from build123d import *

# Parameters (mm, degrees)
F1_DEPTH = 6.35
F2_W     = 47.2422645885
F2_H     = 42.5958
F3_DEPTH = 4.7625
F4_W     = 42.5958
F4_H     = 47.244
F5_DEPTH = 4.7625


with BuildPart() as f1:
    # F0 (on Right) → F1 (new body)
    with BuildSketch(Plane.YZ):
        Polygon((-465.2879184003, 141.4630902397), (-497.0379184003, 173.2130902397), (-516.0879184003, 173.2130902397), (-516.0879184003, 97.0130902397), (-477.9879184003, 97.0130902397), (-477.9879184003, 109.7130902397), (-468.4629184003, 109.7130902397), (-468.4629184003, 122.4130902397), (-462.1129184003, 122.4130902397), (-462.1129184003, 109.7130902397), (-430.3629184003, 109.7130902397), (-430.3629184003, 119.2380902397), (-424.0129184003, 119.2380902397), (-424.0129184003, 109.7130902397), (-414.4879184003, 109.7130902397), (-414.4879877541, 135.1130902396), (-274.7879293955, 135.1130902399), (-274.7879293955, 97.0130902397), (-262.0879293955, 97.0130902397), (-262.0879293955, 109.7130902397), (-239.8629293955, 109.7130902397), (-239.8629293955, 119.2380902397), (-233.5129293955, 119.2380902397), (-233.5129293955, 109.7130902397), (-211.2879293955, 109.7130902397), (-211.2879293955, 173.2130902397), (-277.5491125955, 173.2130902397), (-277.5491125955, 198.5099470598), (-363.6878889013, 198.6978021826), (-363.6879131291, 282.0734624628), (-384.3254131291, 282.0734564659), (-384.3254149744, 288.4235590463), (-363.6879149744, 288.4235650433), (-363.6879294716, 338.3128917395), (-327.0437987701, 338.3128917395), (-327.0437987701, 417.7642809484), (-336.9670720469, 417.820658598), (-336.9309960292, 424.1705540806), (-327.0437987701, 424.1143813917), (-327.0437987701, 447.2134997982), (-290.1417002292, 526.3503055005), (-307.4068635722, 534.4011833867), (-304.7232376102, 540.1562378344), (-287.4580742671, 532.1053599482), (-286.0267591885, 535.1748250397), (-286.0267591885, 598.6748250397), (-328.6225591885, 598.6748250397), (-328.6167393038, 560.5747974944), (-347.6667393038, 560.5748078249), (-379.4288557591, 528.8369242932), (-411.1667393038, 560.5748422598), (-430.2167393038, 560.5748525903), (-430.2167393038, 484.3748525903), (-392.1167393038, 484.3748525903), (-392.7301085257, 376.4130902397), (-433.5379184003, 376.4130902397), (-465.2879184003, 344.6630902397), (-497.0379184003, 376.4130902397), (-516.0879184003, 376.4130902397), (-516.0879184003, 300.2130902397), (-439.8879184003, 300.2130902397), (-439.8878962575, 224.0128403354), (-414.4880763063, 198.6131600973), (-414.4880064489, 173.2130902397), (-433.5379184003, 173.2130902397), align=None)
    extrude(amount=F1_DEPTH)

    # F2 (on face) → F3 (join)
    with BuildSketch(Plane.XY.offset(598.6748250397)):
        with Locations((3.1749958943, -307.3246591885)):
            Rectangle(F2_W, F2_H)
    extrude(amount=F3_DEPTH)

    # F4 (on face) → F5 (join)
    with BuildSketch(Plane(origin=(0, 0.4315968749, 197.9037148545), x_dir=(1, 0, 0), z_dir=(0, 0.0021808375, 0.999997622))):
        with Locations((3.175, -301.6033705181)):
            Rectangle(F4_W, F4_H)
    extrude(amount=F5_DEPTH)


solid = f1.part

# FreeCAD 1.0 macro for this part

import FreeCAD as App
import Part
import Sketcher

V = App.Vector
Q = App.Units.Quantity

doc = App.newDocument("Part")
body = doc.addObject("PartDesign::Body", "Body")

# Sketch on YZ plane
sketch1 = body.newObject("Sketcher::SketchObject", "Sketch")
sketch1.AttachmentSupport = (doc.getObject("YZ_Plane"), [""])
sketch1.MapMode = "FlatFace"
sketch1.addGeometry([
    Part.LineSegment(V(-465.287918, 141.46309, 0), V(-497.037918, 173.21309, 0)),  # 0
    Part.LineSegment(V(-497.037918, 173.21309, 0), V(-516.087918, 173.21309, 0)),  # 1
    Part.LineSegment(V(-516.087918, 173.21309, 0), V(-516.087918, 97.01309, 0)),  # 2
    Part.LineSegment(V(-516.087918, 97.01309, 0), V(-477.987918, 97.01309, 0)),  # 3
    Part.LineSegment(V(-477.987918, 97.01309, 0), V(-477.987918, 109.71309, 0)),  # 4
    Part.LineSegment(V(-477.987918, 109.71309, 0), V(-468.462918, 109.71309, 0)),  # 5
    Part.LineSegment(V(-468.462918, 109.71309, 0), V(-468.462918, 122.41309, 0)),  # 6
    Part.LineSegment(V(-468.462918, 122.41309, 0), V(-462.112918, 122.41309, 0)),  # 7
    Part.LineSegment(V(-462.112918, 122.41309, 0), V(-462.112918, 109.71309, 0)),  # 8
    Part.LineSegment(V(-462.112918, 109.71309, 0), V(-430.362918, 109.71309, 0)),  # 9
    Part.LineSegment(V(-430.362918, 109.71309, 0), V(-430.362918, 119.23809, 0)),  # 10
    Part.LineSegment(V(-430.362918, 119.23809, 0), V(-424.012918, 119.23809, 0)),  # 11
    Part.LineSegment(V(-424.012918, 119.23809, 0), V(-424.012918, 109.71309, 0)),  # 12
    Part.LineSegment(V(-424.012918, 109.71309, 0), V(-414.487918, 109.71309, 0)),  # 13
    Part.LineSegment(V(-414.487918, 109.71309, 0), V(-414.487988, 135.11309, 0)),  # 14
    Part.LineSegment(V(-414.487988, 135.11309, 0), V(-274.787929, 135.11309, 0)),  # 15
    Part.LineSegment(V(-274.787929, 135.11309, 0), V(-274.787929, 97.01309, 0)),  # 16
    Part.LineSegment(V(-274.787929, 97.01309, 0), V(-262.087929, 97.01309, 0)),  # 17
    Part.LineSegment(V(-262.087929, 97.01309, 0), V(-262.087929, 109.71309, 0)),  # 18
    Part.LineSegment(V(-262.087929, 109.71309, 0), V(-239.862929, 109.71309, 0)),  # 19
    Part.LineSegment(V(-239.862929, 109.71309, 0), V(-239.862929, 119.23809, 0)),  # 20
    Part.LineSegment(V(-239.862929, 119.23809, 0), V(-233.512929, 119.23809, 0)),  # 21
    Part.LineSegment(V(-233.512929, 119.23809, 0), V(-233.512929, 109.71309, 0)),  # 22
    Part.LineSegment(V(-233.512929, 109.71309, 0), V(-211.287929, 109.71309, 0)),  # 23
    Part.LineSegment(V(-211.287929, 109.71309, 0), V(-211.287929, 173.21309, 0)),  # 24
    Part.LineSegment(V(-211.287929, 173.21309, 0), V(-277.549113, 173.21309, 0)),  # 25
    Part.LineSegment(V(-277.549113, 173.21309, 0), V(-277.549113, 198.509947, 0)),  # 26
    Part.LineSegment(V(-277.549113, 198.509947, 0), V(-363.687889, 198.697802, 0)),  # 27
    Part.LineSegment(V(-363.687889, 198.697802, 0), V(-363.687913, 282.073462, 0)),  # 28
    Part.LineSegment(V(-363.687913, 282.073462, 0), V(-384.325413, 282.073456, 0)),  # 29
    Part.LineSegment(V(-384.325413, 282.073456, 0), V(-384.325415, 288.423559, 0)),  # 30
    Part.LineSegment(V(-384.325415, 288.423559, 0), V(-363.687915, 288.423565, 0)),  # 31
    Part.LineSegment(V(-363.687915, 288.423565, 0), V(-363.687929, 338.312892, 0)),  # 32
    Part.LineSegment(V(-363.687929, 338.312892, 0), V(-327.043799, 338.312892, 0)),  # 33
    Part.LineSegment(V(-327.043799, 338.312892, 0), V(-327.043799, 417.764281, 0)),  # 34
    Part.LineSegment(V(-327.043799, 417.764281, 0), V(-336.967072, 417.820659, 0)),  # 35
    Part.LineSegment(V(-336.967072, 417.820659, 0), V(-336.930996, 424.170554, 0)),  # 36
    Part.LineSegment(V(-336.930996, 424.170554, 0), V(-327.043799, 424.114381, 0)),  # 37
    Part.LineSegment(V(-327.043799, 424.114381, 0), V(-327.043799, 447.2135, 0)),  # 38
    Part.LineSegment(V(-327.043799, 447.2135, 0), V(-290.1417, 526.350305, 0)),  # 39
    Part.LineSegment(V(-290.1417, 526.350305, 0), V(-307.406864, 534.401183, 0)),  # 40
    Part.LineSegment(V(-307.406864, 534.401183, 0), V(-304.723238, 540.156238, 0)),  # 41
    Part.LineSegment(V(-304.723238, 540.156238, 0), V(-287.458074, 532.10536, 0)),  # 42
    Part.LineSegment(V(-287.458074, 532.10536, 0), V(-286.026759, 535.174825, 0)),  # 43
    Part.LineSegment(V(-286.026759, 535.174825, 0), V(-286.026759, 598.674825, 0)),  # 44
    Part.LineSegment(V(-286.026759, 598.674825, 0), V(-328.622559, 598.674825, 0)),  # 45
    Part.LineSegment(V(-328.622559, 598.674825, 0), V(-328.616739, 560.574797, 0)),  # 46
    Part.LineSegment(V(-328.616739, 560.574797, 0), V(-347.666739, 560.574808, 0)),  # 47
    Part.LineSegment(V(-347.666739, 560.574808, 0), V(-379.428856, 528.836924, 0)),  # 48
    Part.LineSegment(V(-379.428856, 528.836924, 0), V(-411.166739, 560.574842, 0)),  # 49
    Part.LineSegment(V(-411.166739, 560.574842, 0), V(-430.216739, 560.574853, 0)),  # 50
    Part.LineSegment(V(-430.216739, 560.574853, 0), V(-430.216739, 484.374853, 0)),  # 51
    Part.LineSegment(V(-430.216739, 484.374853, 0), V(-392.116739, 484.374853, 0)),  # 52
    Part.LineSegment(V(-392.116739, 484.374853, 0), V(-392.730109, 376.41309, 0)),  # 53
    Part.LineSegment(V(-392.730109, 376.41309, 0), V(-433.537918, 376.41309, 0)),  # 54
    Part.LineSegment(V(-433.537918, 376.41309, 0), V(-465.287918, 344.66309, 0)),  # 55
    Part.LineSegment(V(-465.287918, 344.66309, 0), V(-497.037918, 376.41309, 0)),  # 56
    Part.LineSegment(V(-497.037918, 376.41309, 0), V(-516.087918, 376.41309, 0)),  # 57
    Part.LineSegment(V(-516.087918, 376.41309, 0), V(-516.087918, 300.21309, 0)),  # 58
    Part.LineSegment(V(-516.087918, 300.21309, 0), V(-439.887918, 300.21309, 0)),  # 59
    Part.LineSegment(V(-439.887918, 300.21309, 0), V(-439.887896, 224.01284, 0)),  # 60
    Part.LineSegment(V(-439.887896, 224.01284, 0), V(-414.488076, 198.61316, 0)),  # 61
    Part.LineSegment(V(-414.488076, 198.61316, 0), V(-414.488006, 173.21309, 0)),  # 62
    Part.LineSegment(V(-414.488006, 173.21309, 0), V(-433.537918, 173.21309, 0)),  # 63
    Part.LineSegment(V(-433.537918, 173.21309, 0), V(-465.287918, 141.46309, 0)),  # 64
], False)
sketch1.addConstraint([
    Sketcher.Constraint("Coincident", 0, 2, 1, 1),
    Sketcher.Constraint("Coincident", 1, 2, 2, 1),
    Sketcher.Constraint("Coincident", 2, 2, 3, 1),
    Sketcher.Constraint("Coincident", 3, 2, 4, 1),
    Sketcher.Constraint("Coincident", 4, 2, 5, 1),
    Sketcher.Constraint("Coincident", 5, 2, 6, 1),
    Sketcher.Constraint("Coincident", 6, 2, 7, 1),
    Sketcher.Constraint("Coincident", 7, 2, 8, 1),
    Sketcher.Constraint("Coincident", 8, 2, 9, 1),
    Sketcher.Constraint("Coincident", 9, 2, 10, 1),
    Sketcher.Constraint("Coincident", 10, 2, 11, 1),
    Sketcher.Constraint("Coincident", 11, 2, 12, 1),
    Sketcher.Constraint("Coincident", 12, 2, 13, 1),
    Sketcher.Constraint("Coincident", 13, 2, 14, 1),
    Sketcher.Constraint("Coincident", 14, 2, 15, 1),
    Sketcher.Constraint("Coincident", 15, 2, 16, 1),
    Sketcher.Constraint("Coincident", 16, 2, 17, 1),
    Sketcher.Constraint("Coincident", 17, 2, 18, 1),
    Sketcher.Constraint("Coincident", 18, 2, 19, 1),
    Sketcher.Constraint("Coincident", 19, 2, 20, 1),
    Sketcher.Constraint("Coincident", 20, 2, 21, 1),
    Sketcher.Constraint("Coincident", 21, 2, 22, 1),
    Sketcher.Constraint("Coincident", 22, 2, 23, 1),
    Sketcher.Constraint("Coincident", 23, 2, 24, 1),
    Sketcher.Constraint("Coincident", 24, 2, 25, 1),
    Sketcher.Constraint("Coincident", 25, 2, 26, 1),
    Sketcher.Constraint("Coincident", 26, 2, 27, 1),
    Sketcher.Constraint("Coincident", 27, 2, 28, 1),
    Sketcher.Constraint("Coincident", 28, 2, 29, 1),
    Sketcher.Constraint("Coincident", 29, 2, 30, 1),
    Sketcher.Constraint("Coincident", 30, 2, 31, 1),
    Sketcher.Constraint("Coincident", 31, 2, 32, 1),
    Sketcher.Constraint("Coincident", 32, 2, 33, 1),
    Sketcher.Constraint("Coincident", 33, 2, 34, 1),
    Sketcher.Constraint("Coincident", 34, 2, 35, 1),
    Sketcher.Constraint("Coincident", 35, 2, 36, 1),
    Sketcher.Constraint("Coincident", 36, 2, 37, 1),
    Sketcher.Constraint("Coincident", 37, 2, 38, 1),
    Sketcher.Constraint("Coincident", 38, 2, 39, 1),
    Sketcher.Constraint("Coincident", 39, 2, 40, 1),
    Sketcher.Constraint("Coincident", 40, 2, 41, 1),
    Sketcher.Constraint("Coincident", 41, 2, 42, 1),
    Sketcher.Constraint("Coincident", 42, 2, 43, 1),
    Sketcher.Constraint("Coincident", 43, 2, 44, 1),
    Sketcher.Constraint("Coincident", 44, 2, 45, 1),
    Sketcher.Constraint("Coincident", 45, 2, 46, 1),
    Sketcher.Constraint("Coincident", 46, 2, 47, 1),
    Sketcher.Constraint("Coincident", 47, 2, 48, 1),
    Sketcher.Constraint("Coincident", 48, 2, 49, 1),
    Sketcher.Constraint("Coincident", 49, 2, 50, 1),
    Sketcher.Constraint("Coincident", 50, 2, 51, 1),
    Sketcher.Constraint("Coincident", 51, 2, 52, 1),
    Sketcher.Constraint("Coincident", 52, 2, 53, 1),
    Sketcher.Constraint("Coincident", 53, 2, 54, 1),
    Sketcher.Constraint("Coincident", 54, 2, 55, 1),
    Sketcher.Constraint("Coincident", 55, 2, 56, 1),
    Sketcher.Constraint("Coincident", 56, 2, 57, 1),
    Sketcher.Constraint("Coincident", 57, 2, 58, 1),
    Sketcher.Constraint("Coincident", 58, 2, 59, 1),
    Sketcher.Constraint("Coincident", 59, 2, 60, 1),
    Sketcher.Constraint("Coincident", 60, 2, 61, 1),
    Sketcher.Constraint("Coincident", 61, 2, 62, 1),
    Sketcher.Constraint("Coincident", 62, 2, 63, 1),
    Sketcher.Constraint("Coincident", 63, 2, 64, 1),
    Sketcher.Constraint("Coincident", 64, 2, 0, 1),
    Sketcher.Constraint("Horizontal", 1),
    Sketcher.Constraint("Vertical", 2),
    Sketcher.Constraint("Horizontal", 3),
    Sketcher.Constraint("Vertical", 4),
    Sketcher.Constraint("Horizontal", 5),
    Sketcher.Constraint("Vertical", 6),
    Sketcher.Constraint("Horizontal", 7),
    Sketcher.Constraint("Vertical", 8),
    Sketcher.Constraint("Horizontal", 9),
    Sketcher.Constraint("Vertical", 10),
    Sketcher.Constraint("Horizontal", 11),
    Sketcher.Constraint("Vertical", 12),
    Sketcher.Constraint("Horizontal", 13),
    Sketcher.Constraint("Horizontal", 15),
    Sketcher.Constraint("Vertical", 16),
    Sketcher.Constraint("Horizontal", 17),
    Sketcher.Constraint("Vertical", 18),
    Sketcher.Constraint("Horizontal", 19),
    Sketcher.Constraint("Vertical", 20),
    Sketcher.Constraint("Horizontal", 21),
    Sketcher.Constraint("Vertical", 22),
    Sketcher.Constraint("Horizontal", 23),
    Sketcher.Constraint("Vertical", 24),
    Sketcher.Constraint("Horizontal", 25),
    Sketcher.Constraint("Vertical", 26),
    Sketcher.Constraint("Vertical", 30),
    Sketcher.Constraint("Horizontal", 33),
    Sketcher.Constraint("Vertical", 34),
    Sketcher.Constraint("Vertical", 38),
    Sketcher.Constraint("Vertical", 44),
    Sketcher.Constraint("Horizontal", 45),
    Sketcher.Constraint("Vertical", 51),
    Sketcher.Constraint("Horizontal", 52),
    Sketcher.Constraint("Horizontal", 54),
    Sketcher.Constraint("Horizontal", 57),
    Sketcher.Constraint("Vertical", 58),
    Sketcher.Constraint("Horizontal", 59),
    Sketcher.Constraint("Horizontal", 63),
    Sketcher.Constraint("Perpendicular", 28, 29),
    Sketcher.Constraint("Parallel", 29, 31),
    Sketcher.Constraint("Perpendicular", 31, 32),
    Sketcher.Constraint("Perpendicular", 35, 36),
    Sketcher.Constraint("Perpendicular", 36, 37),
    Sketcher.Constraint("Perpendicular", 39, 40),
    Sketcher.Constraint("Perpendicular", 40, 41),
    Sketcher.Constraint("Perpendicular", 41, 42),
    Sketcher.Constraint("Perpendicular", 42, 43),
    Sketcher.Constraint("Perpendicular", 32, 47),
    Sketcher.Constraint("Parallel", 0, 49),
    Sketcher.Constraint("Parallel", 47, 50),
    Sketcher.Constraint("Perpendicular", 37, 53),
    Sketcher.Constraint("Perpendicular", 49, 55),
    Sketcher.Constraint("Perpendicular", 55, 56),
    Sketcher.Constraint("Perpendicular", 50, 60),
    Sketcher.Constraint("Parallel", 14, 62),
    Sketcher.Constraint("Perpendicular", 56, 64),
    Sketcher.Constraint("Horizontal", 5, 2, 8, 2),
    Sketcher.Constraint("Horizontal", 9, 2, 12, 2),
    Sketcher.Constraint("Horizontal", 3, 2, 16, 2),
    Sketcher.Constraint("Horizontal", 13, 2, 18, 2),
    Sketcher.Constraint("Horizontal", 11, 2, 20, 2),
    Sketcher.Constraint("Horizontal", 19, 2, 22, 2),
    Sketcher.Constraint("Horizontal", 1, 2, 24, 2),
    Sketcher.Constraint("Horizontal", 54, 2, 56, 2),
    Sketcher.Constraint("Horizontal", 25, 2, 62, 2),
    Sketcher.Constraint("Vertical", 28, 2, 31, 2),
    Sketcher.Constraint("Vertical", 34, 2, 37, 2),
    Sketcher.Constraint("Vertical", 0, 2, 56, 2),
    Sketcher.Constraint("Vertical", 2, 2, 57, 2),
    Sketcher.Constraint("Vertical", 54, 2, 63, 2),
    Sketcher.Constraint("Equal", 7, 11),
    Sketcher.Constraint("Equal", 5, 13),
    Sketcher.Constraint("Equal", 11, 21),
    Sketcher.Constraint("Equal", 19, 23),
    Sketcher.Constraint("Equal", 3, 52),
    Sketcher.Constraint("Equal", 59, 2),
    Sketcher.Constraint("Equal", 17, 4),
    Sketcher.Constraint("Equal", 4, 6),
    Sketcher.Constraint("Equal", 13, 10),
    Sketcher.Constraint("Equal", 52, 16),
    Sketcher.Constraint("Equal", 24, 44),
    Sketcher.Constraint("Equal", 2, 51),
    Sketcher.Constraint("Equal", 51, 58),
    Sketcher.Constraint("Equal", 40, 42),
    Sketcher.Constraint("Equal", 42, 47),
    Sketcher.Constraint("Equal", 47, 50),
    Sketcher.Constraint("Equal", 0, 55),
    Sketcher.Constraint("DistanceX", 59, 1, 59, 2, Q("3 in")),
    Sketcher.Constraint("Distance", 14, Q("1 in")),
    Sketcher.Constraint("DistanceX", 3, 1, 3, 2, Q("1.5 in")),
    Sketcher.Constraint("Angle", 28, Q("90.000017 deg")),
    Sketcher.Constraint("Angle", 39, Q("65 deg")),
    Sketcher.Constraint("DistanceX", 1, 2, 1, 1, Q("0.75 in")),
    Sketcher.Constraint("DistanceX", 7, 1, 7, 2, Q("0.25 in")),
    Sketcher.Constraint("DistanceX", 9, 1, 9, 2, Q("1.25 in")),
    Sketcher.Constraint("Distance", 36, Q("0.2499999 in")),
    Sketcher.Constraint("Distance", 40, Q("0.75 in")),
    Sketcher.Constraint("Distance", 41, Q("0.25 in")),
    Sketcher.Constraint("DistanceX", 5, 1, 5, 2, Q("0.375 in")),
    Sketcher.Constraint("DistanceX", 19, 1, 19, 2, Q("0.875 in")),
    Sketcher.Constraint("DistanceX", 45, 2, 45, 1, Q("1.677 in")),
    Sketcher.Constraint("Distance", 29, Q("0.8125 in")),
    Sketcher.Constraint("DistanceX", 36, 2, -1, 1, Q("13.2649998 in")),
    Sketcher.Constraint("DistanceX", 15, 1, 15, 2, 139.700058),
    Sketcher.Constraint("DistanceX", 33, 1, 33, 2, 36.644131),
    Sketcher.Constraint("DistanceX", 54, 2, 54, 1, 40.80781),
    Sketcher.Constraint("DistanceX", 63, 2, 63, 1, 19.049912),
    Sketcher.Constraint("DistanceY", 34, 1, 34, 2, 79.451389),
    Sketcher.Constraint("DistanceY", 38, 1, 38, 2, 23.099118),
    Sketcher.Constraint("DistanceX", 33, 2, -1, 1, 327.043799),
    Sketcher.Constraint("DistanceY", -1, 1, 38, 2, 447.2135),
    Sketcher.Constraint("DistanceX", 39, 2, -1, 1, 290.1417),
    Sketcher.Constraint("Distance", 0, 44.901281),
    Sketcher.Constraint("Distance", 27, 86.138981),
    Sketcher.Constraint("Distance", 28, 83.37566),
    Sketcher.Constraint("Distance", 43, 3.38678),
    Sketcher.Constraint("Distance", 49, 44.88417),
    Sketcher.Constraint("Distance", 60, 76.20025),
    Sketcher.Constraint("Distance", 61, 35.920671),
    Sketcher.Constraint("Distance", 62, 25.40007),
    Sketcher.Constraint("DistanceX", 25, 2, 25, 1, 66.261183),
    Sketcher.Constraint("DistanceY", 26, 1, 26, 2, 25.296857),
    Sketcher.Constraint("DistanceY", 30, 1, 30, 2, 6.350103),
    Sketcher.Constraint("DistanceX", 0, 2, -1, 1, 497.037918),
    Sketcher.Constraint("DistanceY", -1, 1, 0, 2, 173.21309),
    Sketcher.Constraint("DistanceY", -1, 1, 30, 2, 288.423559),
    Sketcher.Constraint("DistanceY", -1, 1, 35, 2, 417.820659),
    Sketcher.Constraint("DistanceX", 46, 2, -1, 1, 328.616739),
    Sketcher.Constraint("Distance", 46, 38.100028),
    Sketcher.Constraint("Distance", 48, 44.901284),
])
pad1 = body.newObject("PartDesign::Pad", "Pad")
pad1.Profile = sketch1
pad1.Length = Q("0.25 in")

# Sketch on XY plane
sketch2 = body.newObject("Sketcher::SketchObject", "Sketch001")
sketch2.AttachmentSupport = (doc.getObject("XY_Plane"), [""])
sketch2.MapMode = "FlatFace"
sketch2.AttachmentOffset = App.Placement(V(0, 0, 598.674825), App.Rotation())
sketch2.addGeometry([
    Part.LineSegment(V(-20.446136, -286.026759, 0), V(-20.446136, -328.622559, 0)),
    Part.LineSegment(V(-20.446136, -328.622559, 0), V(26.796128, -328.622559, 0)),
    Part.LineSegment(V(26.796128, -328.622559, 0), V(26.796128, -286.026759, 0)),
    Part.LineSegment(V(26.796128, -286.026759, 0), V(-20.446136, -286.026759, 0)),
], False)
sketch2.addConstraint([
    Sketcher.Constraint("Coincident", 0, 2, 1, 1),
    Sketcher.Constraint("Coincident", 1, 2, 2, 1),
    Sketcher.Constraint("Coincident", 2, 2, 3, 1),
    Sketcher.Constraint("Coincident", 3, 2, 0, 1),
    Sketcher.Constraint("Vertical", 0),
    Sketcher.Constraint("Horizontal", 1),
    Sketcher.Constraint("Vertical", 2),
    Sketcher.Constraint("Horizontal", 3),
    Sketcher.Constraint("DistanceY", 0, 2, 0, 1, Q("1.677 in")),
    Sketcher.Constraint("DistanceX", 1, 1, 1, 2, 47.242265),
    Sketcher.Constraint("DistanceY", 0, 2, -1, 1, 328.622559),
    Sketcher.Constraint("DistanceX", -1, 1, 1, 2, 26.796128),
])
pad2 = body.newObject("PartDesign::Pad", "Pad001")
pad2.Profile = sketch2
pad2.Length = Q("0.1875 in")

# Sketch on an angled plane
sketch3 = body.newObject("Sketcher::SketchObject", "Sketch002")
sketch3.Placement = App.Placement(V(0, 0.431597, 197.903715), App.Rotation(V(1, 0, 0), V(0, 0.999997622, -0.002180837), V(0, 0.002180837, 0.999997622), "ZXY"))
sketch3.addGeometry([
    Part.LineSegment(V(-18.1229, -277.981371, 0), V(-18.1229, -325.225371, 0)),
    Part.LineSegment(V(-18.1229, -325.225371, 0), V(24.4729, -325.225371, 0)),
    Part.LineSegment(V(24.4729, -325.225371, 0), V(24.4729, -277.981371, 0)),
    Part.LineSegment(V(24.4729, -277.981371, 0), V(-18.1229, -277.981371, 0)),
], False)
sketch3.addConstraint([
    Sketcher.Constraint("Coincident", 0, 2, 1, 1),
    Sketcher.Constraint("Coincident", 1, 2, 2, 1),
    Sketcher.Constraint("Coincident", 2, 2, 3, 1),
    Sketcher.Constraint("Coincident", 3, 2, 0, 1),
    Sketcher.Constraint("Vertical", 0),
    Sketcher.Constraint("Horizontal", 1),
    Sketcher.Constraint("Vertical", 2),
    Sketcher.Constraint("Horizontal", 3),
    Sketcher.Constraint("DistanceY", 0, 2, 0, 1, Q("1.86 in")),
    Sketcher.Constraint("DistanceX", 1, 1, 1, 2, Q("1.677 in")),
    Sketcher.Constraint("DistanceX", 0, 2, -1, 1, Q("0.7135 in")),
    Sketcher.Constraint("DistanceY", 0, 2, -1, 1, 325.225371),
])
pad3 = body.newObject("PartDesign::Pad", "Pad002")
pad3.Profile = sketch3
pad3.Length = Q("0.1875 in")

doc.recompute()
